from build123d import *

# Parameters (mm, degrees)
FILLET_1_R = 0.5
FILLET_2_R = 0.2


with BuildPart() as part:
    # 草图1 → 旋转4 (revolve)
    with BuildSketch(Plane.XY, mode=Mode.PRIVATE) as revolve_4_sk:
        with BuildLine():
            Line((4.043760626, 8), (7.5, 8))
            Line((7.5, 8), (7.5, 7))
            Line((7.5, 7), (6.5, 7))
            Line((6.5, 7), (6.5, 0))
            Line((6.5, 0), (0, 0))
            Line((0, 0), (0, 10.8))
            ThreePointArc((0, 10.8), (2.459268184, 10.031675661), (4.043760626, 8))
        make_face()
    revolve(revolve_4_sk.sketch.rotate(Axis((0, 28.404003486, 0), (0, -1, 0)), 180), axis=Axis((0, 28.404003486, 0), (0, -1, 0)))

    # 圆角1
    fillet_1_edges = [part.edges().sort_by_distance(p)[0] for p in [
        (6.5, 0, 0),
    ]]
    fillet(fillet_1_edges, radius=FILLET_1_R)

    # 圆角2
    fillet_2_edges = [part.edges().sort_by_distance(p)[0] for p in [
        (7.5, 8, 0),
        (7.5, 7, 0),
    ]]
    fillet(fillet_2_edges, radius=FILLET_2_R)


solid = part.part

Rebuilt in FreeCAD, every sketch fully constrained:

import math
import FreeCAD as App
import Part
import Sketcher

V = App.Vector


def edges_at(feature, points):
    """Names of the edges that pass closest to the given points."""
    edges = feature.Shape.Edges
    near = lambda p: min(range(len(edges)), key=lambda i: edges[i].distToShape(Part.Vertex(*p))[0])
    return sorted({f"Edge{near(p) + 1}" for p in points})

doc = App.newDocument("Part")
params = doc.addObject("Spreadsheet::Sheet", "Params")
for row, (alias, value) in enumerate([
    ("sketch1_width", "1 mm"),
    ("sketch1_height", "7 mm"),
    ("sketch1_radius", "4.32 mm"),
    ("sketch1_width2", "6.5 mm"),
    ("sketch1_height2", "10.8 mm"),
    ("revolution_angle", "360 deg"),
    ("fillet_radius", "0.5 mm"),
    ("fillet2_radius", "0.2 mm"),
], start=1):
    params.set(f"A{row}", alias)
    params.set(f"B{row}", "=" + value)
    params.setAlias(f"B{row}", alias)

body = doc.addObject("PartDesign::Body", "Body")

sketch1 = doc.addObject("Sketcher::SketchObject", "Sketch")
body.addObject(sketch1)
sketch1.AttachmentSupport = (doc.XY_Plane, [""])
sketch1.MapMode = "FlatFace"
sketch1.addGeometry([
    Part.LineSegment(V(7.5, 8, 0), V(4, 8, 0)),
    Part.ArcOfCircle(Part.Circle(V(0, 6.5, 0), V(0, 0, 1), 4.3), math.radians(21), math.radians(90)),
    Part.LineSegment(V(0, 10.8, 0), V(0, 0, 0)),
    Part.LineSegment(V(0, 0, 0), V(6.5, 0, 0)),
    Part.LineSegment(V(6.5, 0, 0), V(6.5, 7, 0)),
    Part.LineSegment(V(6.5, 7, 0), V(7.5, 7, 0)),
    Part.LineSegment(V(7.5, 7, 0), V(7.5, 8, 0)),
], False)
sketch1.addConstraint([
    Sketcher.Constraint("Coincident", 0, 2, 1, 1),
    Sketcher.Constraint("Coincident", 1, 2, 2, 1),
    Sketcher.Constraint("Coincident", 2, 2, 3, 1),
    Sketcher.Constraint("Coincident", 3, 2, 4, 1),
    Sketcher.Constraint("Coincident", 4, 2, 5, 1),
    Sketcher.Constraint("Coincident", 5, 2, 6, 1),
    Sketcher.Constraint("Coincident", 6, 2, 0, 1),
    Sketcher.Constraint("Horizontal", 0),
    Sketcher.Constraint("Vertical", 2),
    Sketcher.Constraint("Horizontal", 3),
    Sketcher.Constraint("Vertical", 4),
    Sketcher.Constraint("Horizontal", 5),
    Sketcher.Constraint("Vertical", 6),
    Sketcher.Constraint("Coincident", 2, 2, -1, 1),
    Sketcher.Constraint("PointOnObject", 1, 3, -2),
    Sketcher.Constraint("Equal", 5, 6),
    Sketcher.Constraint("DistanceX", 5, 1, 5, 2, 1.0),
    Sketcher.Constraint("DistanceY", 4, 1, 4, 2, 7.0),
    Sketcher.Constraint("Radius", 1, 4.32),
    Sketcher.Constraint("DistanceX", 3, 1, 3, 2, 6.5),
    Sketcher.Constraint("DistanceY", 2, 2, 2, 1, 10.8),
])
sketch1.setExpression("Constraints[16]", "Params.sketch1_width")
sketch1.setExpression("Constraints[17]", "Params.sketch1_height")
sketch1.setExpression("Constraints[18]", "Params.sketch1_radius")
sketch1.setExpression("Constraints[19]", "Params.sketch1_width2")
sketch1.setExpression("Constraints[20]", "Params.sketch1_height2")
revolution = doc.addObject("PartDesign::Revolution", "Revolution")
body.addObject(revolution)
revolution.Profile = sketch1
revolution.ReferenceAxis = (sketch1, ["V_Axis"])
revolution.setExpression("Angle", "Params.revolution_angle")
doc.recompute()

fillet = doc.addObject("PartDesign::Fillet", "Fillet")
body.addObject(fillet)
fillet.Base = (revolution, edges_at(revolution, [(6.5, 0, 0)]))
fillet.setExpression("Radius", "Params.fillet_radius")
doc.recompute()

fillet2 = doc.addObject("PartDesign::Fillet", "Fillet001")
body.addObject(fillet2)
fillet2.Base = (fillet, edges_at(fillet, [(7.5, 8, 0), (7.5, 7, 0)]))
fillet2.setExpression("Radius", "Params.fillet2_radius")

doc.recompute()
